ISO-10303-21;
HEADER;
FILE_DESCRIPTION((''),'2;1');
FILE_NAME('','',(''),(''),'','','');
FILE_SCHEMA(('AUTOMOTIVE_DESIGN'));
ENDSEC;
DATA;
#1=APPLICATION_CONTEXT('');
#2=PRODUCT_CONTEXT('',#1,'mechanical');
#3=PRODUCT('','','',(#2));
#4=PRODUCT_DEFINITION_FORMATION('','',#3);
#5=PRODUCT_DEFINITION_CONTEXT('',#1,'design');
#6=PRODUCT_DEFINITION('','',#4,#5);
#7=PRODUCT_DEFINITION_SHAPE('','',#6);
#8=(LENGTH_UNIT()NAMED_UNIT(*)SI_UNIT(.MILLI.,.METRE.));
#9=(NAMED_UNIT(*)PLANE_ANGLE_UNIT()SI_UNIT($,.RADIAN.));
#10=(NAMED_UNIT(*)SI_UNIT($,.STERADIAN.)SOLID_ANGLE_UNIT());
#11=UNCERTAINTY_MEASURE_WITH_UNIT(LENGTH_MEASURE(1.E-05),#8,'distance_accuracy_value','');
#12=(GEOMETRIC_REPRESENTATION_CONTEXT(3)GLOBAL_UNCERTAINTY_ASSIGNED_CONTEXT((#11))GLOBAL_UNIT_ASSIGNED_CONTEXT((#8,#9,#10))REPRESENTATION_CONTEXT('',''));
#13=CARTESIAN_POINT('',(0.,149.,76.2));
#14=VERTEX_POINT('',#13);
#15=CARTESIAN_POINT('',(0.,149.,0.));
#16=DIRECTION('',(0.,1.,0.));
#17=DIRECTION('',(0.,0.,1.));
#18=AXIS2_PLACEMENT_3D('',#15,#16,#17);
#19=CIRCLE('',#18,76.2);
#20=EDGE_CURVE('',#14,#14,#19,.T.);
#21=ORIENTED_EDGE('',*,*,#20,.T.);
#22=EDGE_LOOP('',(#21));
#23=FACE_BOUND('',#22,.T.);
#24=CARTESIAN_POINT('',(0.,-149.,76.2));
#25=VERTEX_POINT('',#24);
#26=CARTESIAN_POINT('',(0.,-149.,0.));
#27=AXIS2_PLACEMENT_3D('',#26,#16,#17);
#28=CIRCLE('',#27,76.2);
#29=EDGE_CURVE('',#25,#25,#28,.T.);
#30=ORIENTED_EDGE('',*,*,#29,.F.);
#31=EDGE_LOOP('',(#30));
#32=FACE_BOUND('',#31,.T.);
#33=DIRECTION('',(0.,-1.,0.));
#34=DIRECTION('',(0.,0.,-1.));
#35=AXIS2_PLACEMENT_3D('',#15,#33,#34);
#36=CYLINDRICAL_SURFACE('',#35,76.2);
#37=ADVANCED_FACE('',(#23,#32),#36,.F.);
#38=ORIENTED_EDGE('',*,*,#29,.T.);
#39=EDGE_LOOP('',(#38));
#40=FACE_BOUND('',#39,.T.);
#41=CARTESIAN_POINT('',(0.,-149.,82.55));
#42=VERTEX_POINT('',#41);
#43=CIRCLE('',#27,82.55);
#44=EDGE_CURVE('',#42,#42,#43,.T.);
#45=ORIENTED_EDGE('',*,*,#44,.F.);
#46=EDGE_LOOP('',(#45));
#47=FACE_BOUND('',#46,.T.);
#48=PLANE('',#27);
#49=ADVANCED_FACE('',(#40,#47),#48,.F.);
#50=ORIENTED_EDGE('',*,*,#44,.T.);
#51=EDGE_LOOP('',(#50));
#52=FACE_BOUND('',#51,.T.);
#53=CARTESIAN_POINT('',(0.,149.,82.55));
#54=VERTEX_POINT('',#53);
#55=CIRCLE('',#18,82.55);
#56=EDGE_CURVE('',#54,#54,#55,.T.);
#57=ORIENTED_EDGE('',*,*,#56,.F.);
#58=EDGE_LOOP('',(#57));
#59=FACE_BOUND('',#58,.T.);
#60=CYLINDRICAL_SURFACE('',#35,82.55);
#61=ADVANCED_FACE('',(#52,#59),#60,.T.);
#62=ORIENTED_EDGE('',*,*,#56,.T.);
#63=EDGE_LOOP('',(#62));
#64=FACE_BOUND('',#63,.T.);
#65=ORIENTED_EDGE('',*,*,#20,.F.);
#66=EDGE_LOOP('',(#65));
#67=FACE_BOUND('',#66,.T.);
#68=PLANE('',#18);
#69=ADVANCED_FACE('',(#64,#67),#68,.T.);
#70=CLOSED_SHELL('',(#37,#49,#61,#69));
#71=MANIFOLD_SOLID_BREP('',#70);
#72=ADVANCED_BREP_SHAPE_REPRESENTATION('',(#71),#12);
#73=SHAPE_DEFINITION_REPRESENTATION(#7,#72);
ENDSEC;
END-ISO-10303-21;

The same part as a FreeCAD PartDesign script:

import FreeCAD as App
import Part
import Sketcher
from FreeCAD import Vector
Q = App.Units.Quantity

doc = App.newDocument("Part")
body = doc.addObject("PartDesign::Body", "Body")

# Sketch on XZ plane
sketch1 = body.newObject("Sketcher::SketchObject", "Sketch")
sketch1.AttachmentSupport = (doc.getObject("XZ_Plane"), [""])
sketch1.MapMode = "FlatFace"
sketch1.addGeometry([
    Part.Circle(Vector(0, 0, 0), Vector(0, 0, 1), 83),
    Part.Circle(Vector(0, 0, 0), Vector(0, 0, 1), 76),
], False)
sketch1.addConstraint([
    Sketcher.Constraint("Coincident", 0, 3, -1, 1),
    Sketcher.Constraint("Coincident", 1, 3, -1, 1),
    Sketcher.Constraint("Diameter", 1, Q("6 in")),
    Sketcher.Constraint("Diameter", 0, Q("6.5 in")),
])
pad1 = body.newObject("PartDesign::Pad", "Pad")
pad1.Profile = sketch1
pad1.Length = 298
pad1.Midplane = True

doc.recompute()
